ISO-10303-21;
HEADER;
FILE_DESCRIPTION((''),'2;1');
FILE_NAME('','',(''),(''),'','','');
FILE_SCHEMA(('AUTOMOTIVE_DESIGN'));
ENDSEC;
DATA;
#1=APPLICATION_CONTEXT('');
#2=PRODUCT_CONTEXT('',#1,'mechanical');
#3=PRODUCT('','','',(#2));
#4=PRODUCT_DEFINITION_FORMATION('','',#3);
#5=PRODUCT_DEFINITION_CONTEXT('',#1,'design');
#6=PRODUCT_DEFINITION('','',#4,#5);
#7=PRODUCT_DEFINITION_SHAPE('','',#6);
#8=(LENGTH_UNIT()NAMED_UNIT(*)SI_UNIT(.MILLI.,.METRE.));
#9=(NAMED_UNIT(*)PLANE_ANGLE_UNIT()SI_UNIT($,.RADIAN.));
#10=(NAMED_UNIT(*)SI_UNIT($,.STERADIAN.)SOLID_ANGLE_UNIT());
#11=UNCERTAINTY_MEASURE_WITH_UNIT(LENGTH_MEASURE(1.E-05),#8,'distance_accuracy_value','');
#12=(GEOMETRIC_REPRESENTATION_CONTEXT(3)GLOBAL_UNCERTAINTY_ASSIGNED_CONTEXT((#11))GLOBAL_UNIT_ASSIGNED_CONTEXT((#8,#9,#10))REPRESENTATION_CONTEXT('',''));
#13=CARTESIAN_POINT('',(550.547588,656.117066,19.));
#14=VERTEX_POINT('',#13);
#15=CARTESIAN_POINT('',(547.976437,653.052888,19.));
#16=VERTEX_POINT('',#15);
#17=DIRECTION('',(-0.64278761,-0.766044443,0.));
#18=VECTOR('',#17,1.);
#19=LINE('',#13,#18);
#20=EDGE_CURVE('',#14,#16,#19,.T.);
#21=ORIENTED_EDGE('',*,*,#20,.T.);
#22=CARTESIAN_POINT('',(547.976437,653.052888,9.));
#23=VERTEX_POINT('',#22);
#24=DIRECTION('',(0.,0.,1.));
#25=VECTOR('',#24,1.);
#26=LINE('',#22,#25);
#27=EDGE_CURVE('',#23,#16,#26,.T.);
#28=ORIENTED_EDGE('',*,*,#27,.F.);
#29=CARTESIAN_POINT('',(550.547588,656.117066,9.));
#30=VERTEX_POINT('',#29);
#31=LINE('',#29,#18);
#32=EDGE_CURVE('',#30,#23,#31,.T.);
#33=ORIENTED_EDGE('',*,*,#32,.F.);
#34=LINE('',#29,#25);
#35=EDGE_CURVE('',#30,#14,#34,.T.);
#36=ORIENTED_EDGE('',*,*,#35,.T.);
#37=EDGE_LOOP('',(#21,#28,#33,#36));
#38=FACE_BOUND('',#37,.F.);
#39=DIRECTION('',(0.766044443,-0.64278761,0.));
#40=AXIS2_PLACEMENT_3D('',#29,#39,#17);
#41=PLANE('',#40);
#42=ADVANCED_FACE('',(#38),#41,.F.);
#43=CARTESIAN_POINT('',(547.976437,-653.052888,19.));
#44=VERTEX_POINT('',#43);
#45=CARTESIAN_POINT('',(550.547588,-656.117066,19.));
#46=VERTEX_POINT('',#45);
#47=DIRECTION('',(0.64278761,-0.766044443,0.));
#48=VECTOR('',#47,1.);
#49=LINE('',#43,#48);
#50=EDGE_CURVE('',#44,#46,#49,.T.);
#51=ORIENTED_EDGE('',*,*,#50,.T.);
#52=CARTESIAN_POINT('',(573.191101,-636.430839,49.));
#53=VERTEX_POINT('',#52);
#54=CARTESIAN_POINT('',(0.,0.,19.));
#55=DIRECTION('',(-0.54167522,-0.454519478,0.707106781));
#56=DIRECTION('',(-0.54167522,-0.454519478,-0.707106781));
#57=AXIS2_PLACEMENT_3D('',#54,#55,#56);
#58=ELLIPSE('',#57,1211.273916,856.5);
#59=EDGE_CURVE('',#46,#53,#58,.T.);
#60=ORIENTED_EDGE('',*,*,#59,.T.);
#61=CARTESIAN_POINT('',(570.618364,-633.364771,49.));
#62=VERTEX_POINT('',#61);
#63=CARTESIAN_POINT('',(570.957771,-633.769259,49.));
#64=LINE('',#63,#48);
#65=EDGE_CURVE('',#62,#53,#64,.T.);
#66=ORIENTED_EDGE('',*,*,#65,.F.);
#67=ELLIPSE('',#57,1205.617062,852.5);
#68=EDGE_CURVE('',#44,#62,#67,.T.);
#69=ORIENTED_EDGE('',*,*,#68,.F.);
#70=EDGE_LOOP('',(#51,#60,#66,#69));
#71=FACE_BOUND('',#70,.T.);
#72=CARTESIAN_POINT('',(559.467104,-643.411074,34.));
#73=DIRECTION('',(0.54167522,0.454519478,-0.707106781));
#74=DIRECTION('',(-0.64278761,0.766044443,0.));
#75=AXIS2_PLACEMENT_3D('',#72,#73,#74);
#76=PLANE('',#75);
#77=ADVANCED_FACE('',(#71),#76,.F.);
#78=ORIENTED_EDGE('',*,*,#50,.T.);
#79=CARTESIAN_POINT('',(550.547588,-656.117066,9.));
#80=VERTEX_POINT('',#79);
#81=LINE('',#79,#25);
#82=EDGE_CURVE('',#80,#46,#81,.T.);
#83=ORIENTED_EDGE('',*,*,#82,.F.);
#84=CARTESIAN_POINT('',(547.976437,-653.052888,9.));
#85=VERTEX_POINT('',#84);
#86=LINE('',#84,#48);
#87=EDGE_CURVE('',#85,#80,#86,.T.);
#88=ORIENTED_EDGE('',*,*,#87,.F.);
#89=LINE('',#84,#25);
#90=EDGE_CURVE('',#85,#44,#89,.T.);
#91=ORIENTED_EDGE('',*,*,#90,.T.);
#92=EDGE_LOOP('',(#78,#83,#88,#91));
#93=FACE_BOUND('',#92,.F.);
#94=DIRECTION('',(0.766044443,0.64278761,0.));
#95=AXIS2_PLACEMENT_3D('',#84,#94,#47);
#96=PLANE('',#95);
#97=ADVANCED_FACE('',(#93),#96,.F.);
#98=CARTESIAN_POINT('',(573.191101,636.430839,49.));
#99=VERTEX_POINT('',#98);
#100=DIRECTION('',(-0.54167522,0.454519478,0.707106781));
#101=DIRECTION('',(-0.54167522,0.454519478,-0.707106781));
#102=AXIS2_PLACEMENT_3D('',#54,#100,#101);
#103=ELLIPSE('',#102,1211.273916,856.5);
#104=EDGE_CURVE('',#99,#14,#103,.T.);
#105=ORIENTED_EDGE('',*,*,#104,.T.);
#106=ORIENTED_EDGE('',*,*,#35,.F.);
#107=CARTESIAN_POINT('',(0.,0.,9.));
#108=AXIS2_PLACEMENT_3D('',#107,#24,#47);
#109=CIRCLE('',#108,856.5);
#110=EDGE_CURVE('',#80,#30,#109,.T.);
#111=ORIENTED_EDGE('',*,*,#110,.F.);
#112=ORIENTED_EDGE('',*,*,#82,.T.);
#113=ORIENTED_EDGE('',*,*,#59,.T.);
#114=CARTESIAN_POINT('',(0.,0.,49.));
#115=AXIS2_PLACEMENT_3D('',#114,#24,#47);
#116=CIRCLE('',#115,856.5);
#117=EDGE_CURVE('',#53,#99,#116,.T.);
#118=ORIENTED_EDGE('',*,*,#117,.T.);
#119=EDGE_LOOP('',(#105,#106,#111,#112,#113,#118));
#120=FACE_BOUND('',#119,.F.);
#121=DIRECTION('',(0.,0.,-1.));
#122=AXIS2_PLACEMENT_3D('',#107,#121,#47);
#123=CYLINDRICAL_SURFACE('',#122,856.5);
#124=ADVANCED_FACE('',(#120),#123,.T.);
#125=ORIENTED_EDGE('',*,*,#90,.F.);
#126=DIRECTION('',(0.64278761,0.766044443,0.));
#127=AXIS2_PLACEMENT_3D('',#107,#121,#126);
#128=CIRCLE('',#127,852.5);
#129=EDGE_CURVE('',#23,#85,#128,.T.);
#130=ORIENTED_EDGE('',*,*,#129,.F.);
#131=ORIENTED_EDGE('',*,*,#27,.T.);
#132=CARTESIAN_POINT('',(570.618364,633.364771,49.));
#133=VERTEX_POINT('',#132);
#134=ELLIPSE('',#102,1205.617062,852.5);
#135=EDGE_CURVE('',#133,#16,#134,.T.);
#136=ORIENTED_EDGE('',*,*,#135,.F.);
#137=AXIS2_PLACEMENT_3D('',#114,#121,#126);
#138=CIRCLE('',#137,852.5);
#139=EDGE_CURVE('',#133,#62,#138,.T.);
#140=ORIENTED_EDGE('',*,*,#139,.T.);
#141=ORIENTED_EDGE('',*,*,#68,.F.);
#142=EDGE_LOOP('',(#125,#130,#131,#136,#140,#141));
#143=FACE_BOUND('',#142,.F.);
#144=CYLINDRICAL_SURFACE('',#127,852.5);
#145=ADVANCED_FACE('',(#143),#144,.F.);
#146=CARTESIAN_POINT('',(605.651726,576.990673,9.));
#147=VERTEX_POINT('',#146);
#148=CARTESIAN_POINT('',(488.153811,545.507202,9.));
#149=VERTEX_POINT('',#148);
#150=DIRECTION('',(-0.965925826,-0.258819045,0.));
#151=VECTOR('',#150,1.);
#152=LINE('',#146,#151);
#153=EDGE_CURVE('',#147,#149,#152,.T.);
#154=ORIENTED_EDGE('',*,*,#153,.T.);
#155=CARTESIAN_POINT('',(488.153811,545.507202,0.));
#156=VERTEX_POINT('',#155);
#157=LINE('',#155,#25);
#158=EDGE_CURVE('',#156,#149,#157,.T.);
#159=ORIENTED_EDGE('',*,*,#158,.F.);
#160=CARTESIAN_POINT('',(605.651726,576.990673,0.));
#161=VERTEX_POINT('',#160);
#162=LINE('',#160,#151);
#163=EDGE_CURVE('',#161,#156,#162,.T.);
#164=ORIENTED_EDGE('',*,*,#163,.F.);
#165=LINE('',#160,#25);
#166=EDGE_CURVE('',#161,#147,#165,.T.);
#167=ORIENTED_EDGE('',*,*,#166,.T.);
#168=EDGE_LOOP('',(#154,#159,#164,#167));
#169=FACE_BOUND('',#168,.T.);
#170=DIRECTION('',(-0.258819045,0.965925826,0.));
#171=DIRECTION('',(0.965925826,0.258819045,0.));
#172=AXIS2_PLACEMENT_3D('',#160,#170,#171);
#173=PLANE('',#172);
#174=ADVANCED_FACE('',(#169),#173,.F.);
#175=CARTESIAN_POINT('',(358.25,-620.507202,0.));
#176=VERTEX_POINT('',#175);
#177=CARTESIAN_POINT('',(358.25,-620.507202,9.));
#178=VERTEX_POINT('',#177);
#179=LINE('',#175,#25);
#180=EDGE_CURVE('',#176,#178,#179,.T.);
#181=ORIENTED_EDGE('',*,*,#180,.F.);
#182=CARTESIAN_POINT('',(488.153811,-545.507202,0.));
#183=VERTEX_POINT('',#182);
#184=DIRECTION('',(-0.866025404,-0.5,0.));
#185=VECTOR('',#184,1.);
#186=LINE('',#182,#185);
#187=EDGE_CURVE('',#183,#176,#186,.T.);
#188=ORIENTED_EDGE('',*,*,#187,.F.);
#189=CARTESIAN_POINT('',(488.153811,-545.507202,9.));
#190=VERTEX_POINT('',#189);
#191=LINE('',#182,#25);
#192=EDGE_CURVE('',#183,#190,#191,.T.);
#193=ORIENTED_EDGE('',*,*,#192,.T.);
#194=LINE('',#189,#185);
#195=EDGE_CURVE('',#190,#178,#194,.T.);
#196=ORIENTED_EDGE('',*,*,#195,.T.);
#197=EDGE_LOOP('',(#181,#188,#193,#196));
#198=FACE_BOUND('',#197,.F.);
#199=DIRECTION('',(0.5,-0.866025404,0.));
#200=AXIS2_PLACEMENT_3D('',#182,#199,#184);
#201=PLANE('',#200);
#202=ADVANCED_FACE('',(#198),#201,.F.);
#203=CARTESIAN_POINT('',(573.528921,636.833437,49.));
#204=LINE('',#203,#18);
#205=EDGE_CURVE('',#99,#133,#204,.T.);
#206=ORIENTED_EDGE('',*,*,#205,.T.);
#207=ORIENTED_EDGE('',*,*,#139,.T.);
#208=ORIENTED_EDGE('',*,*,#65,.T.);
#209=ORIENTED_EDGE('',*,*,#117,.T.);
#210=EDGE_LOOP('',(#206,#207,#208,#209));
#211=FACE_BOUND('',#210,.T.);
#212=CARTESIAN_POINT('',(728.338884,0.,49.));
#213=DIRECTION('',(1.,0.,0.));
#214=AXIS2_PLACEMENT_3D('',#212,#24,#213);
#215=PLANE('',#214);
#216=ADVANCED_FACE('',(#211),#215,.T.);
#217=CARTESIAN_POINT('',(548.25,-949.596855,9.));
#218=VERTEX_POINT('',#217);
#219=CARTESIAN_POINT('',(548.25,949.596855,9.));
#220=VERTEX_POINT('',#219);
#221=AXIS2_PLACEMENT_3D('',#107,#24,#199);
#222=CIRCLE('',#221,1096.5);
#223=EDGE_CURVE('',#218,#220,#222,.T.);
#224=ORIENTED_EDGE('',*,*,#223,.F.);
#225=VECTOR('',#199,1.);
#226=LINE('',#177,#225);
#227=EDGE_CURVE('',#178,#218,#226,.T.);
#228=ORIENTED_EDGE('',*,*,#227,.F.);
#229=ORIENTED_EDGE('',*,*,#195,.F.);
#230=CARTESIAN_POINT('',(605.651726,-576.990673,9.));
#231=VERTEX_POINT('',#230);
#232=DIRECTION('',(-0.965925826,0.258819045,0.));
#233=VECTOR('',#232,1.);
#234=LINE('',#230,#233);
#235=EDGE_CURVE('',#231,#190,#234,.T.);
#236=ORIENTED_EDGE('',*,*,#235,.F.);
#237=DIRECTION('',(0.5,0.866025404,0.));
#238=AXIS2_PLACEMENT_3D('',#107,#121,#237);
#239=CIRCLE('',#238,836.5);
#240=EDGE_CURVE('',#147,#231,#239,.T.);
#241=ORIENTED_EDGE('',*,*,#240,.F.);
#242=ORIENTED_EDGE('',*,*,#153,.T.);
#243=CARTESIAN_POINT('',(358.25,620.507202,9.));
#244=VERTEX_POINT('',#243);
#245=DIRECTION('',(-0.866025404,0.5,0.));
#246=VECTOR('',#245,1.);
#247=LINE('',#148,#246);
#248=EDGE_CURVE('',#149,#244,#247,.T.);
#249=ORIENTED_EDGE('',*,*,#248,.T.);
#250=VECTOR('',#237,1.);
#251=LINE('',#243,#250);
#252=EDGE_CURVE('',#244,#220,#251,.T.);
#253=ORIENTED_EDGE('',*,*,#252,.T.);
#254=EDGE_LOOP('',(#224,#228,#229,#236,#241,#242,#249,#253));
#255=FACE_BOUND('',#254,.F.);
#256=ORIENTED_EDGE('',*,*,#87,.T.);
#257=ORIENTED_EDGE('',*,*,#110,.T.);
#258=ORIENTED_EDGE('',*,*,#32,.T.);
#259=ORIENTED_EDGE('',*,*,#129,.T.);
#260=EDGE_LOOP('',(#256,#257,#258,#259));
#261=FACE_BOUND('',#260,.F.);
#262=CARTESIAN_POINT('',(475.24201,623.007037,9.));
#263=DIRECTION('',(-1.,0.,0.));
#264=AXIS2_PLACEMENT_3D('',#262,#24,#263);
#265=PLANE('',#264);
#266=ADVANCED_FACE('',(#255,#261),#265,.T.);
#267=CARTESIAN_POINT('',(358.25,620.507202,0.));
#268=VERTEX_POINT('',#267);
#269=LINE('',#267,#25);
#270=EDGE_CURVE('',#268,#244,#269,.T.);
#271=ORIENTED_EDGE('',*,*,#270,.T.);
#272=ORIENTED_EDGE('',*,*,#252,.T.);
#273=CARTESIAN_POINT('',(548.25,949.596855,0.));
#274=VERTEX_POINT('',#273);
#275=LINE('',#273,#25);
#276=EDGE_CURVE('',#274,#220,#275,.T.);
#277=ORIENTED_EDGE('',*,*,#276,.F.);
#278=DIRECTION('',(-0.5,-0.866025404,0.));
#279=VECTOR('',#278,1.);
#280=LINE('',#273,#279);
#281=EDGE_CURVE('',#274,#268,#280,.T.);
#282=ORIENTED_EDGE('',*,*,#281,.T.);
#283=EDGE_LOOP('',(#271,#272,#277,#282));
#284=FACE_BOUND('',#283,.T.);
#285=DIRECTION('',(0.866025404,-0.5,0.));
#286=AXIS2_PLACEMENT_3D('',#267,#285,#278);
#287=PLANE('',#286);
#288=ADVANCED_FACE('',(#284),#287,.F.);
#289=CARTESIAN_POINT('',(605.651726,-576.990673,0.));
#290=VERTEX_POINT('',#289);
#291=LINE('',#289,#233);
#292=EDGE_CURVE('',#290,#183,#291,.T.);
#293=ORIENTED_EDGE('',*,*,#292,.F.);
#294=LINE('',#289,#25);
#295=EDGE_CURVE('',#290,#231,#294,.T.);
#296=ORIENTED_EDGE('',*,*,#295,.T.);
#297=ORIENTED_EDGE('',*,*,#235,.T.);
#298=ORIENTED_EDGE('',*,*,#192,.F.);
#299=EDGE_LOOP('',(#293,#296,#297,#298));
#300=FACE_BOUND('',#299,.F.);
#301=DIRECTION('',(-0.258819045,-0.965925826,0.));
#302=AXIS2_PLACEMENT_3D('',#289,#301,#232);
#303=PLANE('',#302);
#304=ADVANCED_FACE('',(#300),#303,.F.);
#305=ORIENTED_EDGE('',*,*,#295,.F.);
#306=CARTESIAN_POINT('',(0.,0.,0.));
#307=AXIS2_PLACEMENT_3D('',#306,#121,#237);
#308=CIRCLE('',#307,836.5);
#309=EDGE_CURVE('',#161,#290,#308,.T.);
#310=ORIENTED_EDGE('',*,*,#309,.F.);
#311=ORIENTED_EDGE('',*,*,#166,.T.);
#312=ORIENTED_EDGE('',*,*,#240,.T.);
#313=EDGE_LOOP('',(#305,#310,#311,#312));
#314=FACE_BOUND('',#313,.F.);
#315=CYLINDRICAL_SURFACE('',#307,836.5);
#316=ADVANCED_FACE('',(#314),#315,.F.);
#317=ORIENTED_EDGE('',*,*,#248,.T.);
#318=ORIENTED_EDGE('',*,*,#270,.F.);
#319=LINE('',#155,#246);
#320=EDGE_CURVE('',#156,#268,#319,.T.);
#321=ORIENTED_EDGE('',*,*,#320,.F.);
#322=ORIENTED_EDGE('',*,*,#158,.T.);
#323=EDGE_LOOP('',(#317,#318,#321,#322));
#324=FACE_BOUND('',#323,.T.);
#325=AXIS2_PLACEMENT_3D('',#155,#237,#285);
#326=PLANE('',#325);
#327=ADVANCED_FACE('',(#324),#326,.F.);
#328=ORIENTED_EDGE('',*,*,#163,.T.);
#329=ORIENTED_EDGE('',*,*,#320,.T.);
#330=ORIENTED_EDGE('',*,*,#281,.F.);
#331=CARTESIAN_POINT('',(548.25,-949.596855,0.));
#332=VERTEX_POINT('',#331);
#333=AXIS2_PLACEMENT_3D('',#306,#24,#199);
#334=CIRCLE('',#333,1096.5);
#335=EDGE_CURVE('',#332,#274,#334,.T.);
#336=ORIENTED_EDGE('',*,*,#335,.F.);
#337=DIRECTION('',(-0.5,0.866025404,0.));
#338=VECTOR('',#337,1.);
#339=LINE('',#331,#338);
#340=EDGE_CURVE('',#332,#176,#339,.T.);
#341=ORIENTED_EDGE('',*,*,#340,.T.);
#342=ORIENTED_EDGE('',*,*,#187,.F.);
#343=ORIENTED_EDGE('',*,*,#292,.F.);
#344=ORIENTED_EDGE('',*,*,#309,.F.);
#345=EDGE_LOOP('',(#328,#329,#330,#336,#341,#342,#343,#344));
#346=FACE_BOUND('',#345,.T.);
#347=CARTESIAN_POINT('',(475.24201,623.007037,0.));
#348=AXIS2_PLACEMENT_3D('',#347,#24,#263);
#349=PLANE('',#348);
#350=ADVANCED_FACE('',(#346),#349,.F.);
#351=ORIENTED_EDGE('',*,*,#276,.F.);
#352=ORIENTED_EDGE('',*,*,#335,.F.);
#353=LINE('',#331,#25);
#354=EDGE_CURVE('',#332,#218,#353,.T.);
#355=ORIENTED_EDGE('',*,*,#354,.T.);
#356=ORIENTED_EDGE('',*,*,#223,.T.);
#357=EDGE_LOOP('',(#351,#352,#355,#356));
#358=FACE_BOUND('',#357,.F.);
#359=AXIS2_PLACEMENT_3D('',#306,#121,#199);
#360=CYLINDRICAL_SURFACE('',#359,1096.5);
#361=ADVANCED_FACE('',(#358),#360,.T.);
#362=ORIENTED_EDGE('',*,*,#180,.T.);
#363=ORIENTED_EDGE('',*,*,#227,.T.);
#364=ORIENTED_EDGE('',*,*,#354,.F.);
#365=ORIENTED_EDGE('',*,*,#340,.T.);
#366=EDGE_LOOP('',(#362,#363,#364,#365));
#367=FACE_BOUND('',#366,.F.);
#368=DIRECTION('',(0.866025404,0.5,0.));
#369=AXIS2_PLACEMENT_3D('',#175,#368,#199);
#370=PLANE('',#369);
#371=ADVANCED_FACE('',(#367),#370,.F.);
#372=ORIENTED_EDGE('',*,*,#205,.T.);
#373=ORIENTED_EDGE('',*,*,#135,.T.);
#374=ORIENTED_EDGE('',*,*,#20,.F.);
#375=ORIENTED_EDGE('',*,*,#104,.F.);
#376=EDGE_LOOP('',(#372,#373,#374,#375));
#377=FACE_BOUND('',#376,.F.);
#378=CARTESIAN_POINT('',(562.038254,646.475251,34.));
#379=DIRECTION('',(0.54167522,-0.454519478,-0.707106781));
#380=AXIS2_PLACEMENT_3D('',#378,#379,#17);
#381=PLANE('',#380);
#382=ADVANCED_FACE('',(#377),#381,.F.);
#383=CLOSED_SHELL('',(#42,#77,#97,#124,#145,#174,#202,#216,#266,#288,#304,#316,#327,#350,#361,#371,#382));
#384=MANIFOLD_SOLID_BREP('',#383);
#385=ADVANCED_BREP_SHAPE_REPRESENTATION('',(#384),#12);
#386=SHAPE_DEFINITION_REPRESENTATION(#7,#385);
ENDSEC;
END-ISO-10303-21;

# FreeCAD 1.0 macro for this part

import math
import FreeCAD as App
import Part
import Sketcher

V = App.Vector
Q = App.Units.Quantity


def edges_at(feature, points):
    """Names of the edges that pass closest to the given points."""
    edges = feature.Shape.Edges
    near = lambda p: min(range(len(edges)), key=lambda i: edges[i].distToShape(Part.Vertex(*p))[0])
    return sorted({f"Edge{near(p) + 1}" for p in points})

doc = App.newDocument("Part")
body = doc.addObject("PartDesign::Body", "Body")

# Sketch on XY plane
sketch1 = body.newObject("Sketcher::SketchObject", "Sketch")
sketch1.AttachmentSupport = (doc.getObject("XY_Plane"), [""])
sketch1.MapMode = "FlatFace"
sketch1.addGeometry([
    Part.LineSegment(V(418, -724, 0), V(548, -950, 0)),
    Part.ArcOfCircle(Part.Circle(V(0, 0, 0), V(0, 0, 1), 1096), math.radians(-60), math.radians(60)),
    Part.LineSegment(V(548, 950, 0), V(418, 724, 0)),
    Part.ArcOfCircle(Part.Circle(V(0, 0, 0), V(0, 0, 1), 836), math.radians(-60), math.radians(60)),
], False)
sketch1.addConstraint([
    Sketcher.Constraint("Coincident", 0, 2, 1, 1),
    Sketcher.Constraint("Coincident", 1, 2, 2, 1),
    Sketcher.Constraint("Coincident", 2, 2, 3, 2),
    Sketcher.Constraint("Coincident", 3, 1, 0, 1),
    Sketcher.Constraint("Coincident", 1, 3, -1, 1),
    Sketcher.Constraint("Coincident", 3, 3, -1, 1),
    Sketcher.Constraint("Radius", 1, 1096.5),
    Sketcher.Constraint("Radius", 3, 836.5),
    Sketcher.Constraint("Angle", 0, Q("-60 deg")),
    Sketcher.Constraint("Angle", 2, Q("-120 deg")),
    Sketcher.Constraint("DistanceX", 2, 2, 0, 2, 130.0),
    Sketcher.Constraint("DistanceX", -1, 1, 0, 2, 548.25),
])
pad1 = body.newObject("PartDesign::Pad", "Pad")
pad1.Profile = sketch1
pad1.Length = 9

# Sketch on XY plane
sketch2 = body.newObject("Sketcher::SketchObject", "Sketch001")
sketch2.AttachmentSupport = (doc.getObject("XY_Plane"), [""])
sketch2.MapMode = "FlatFace"
sketch2.AttachmentOffset = App.Placement(V(0, 0, 9), App.Rotation())
sketch2.addGeometry([
    Part.LineSegment(V(548, -653.1, 0), V(550.5, -656.1, 0)),
    Part.ArcOfCircle(Part.Circle(V(0, 0, 0), V(0, 0, 1), 856.5), math.radians(-50), math.radians(50)),
    Part.LineSegment(V(550.5, 656.1, 0), V(548, 653.1, 0)),
    Part.ArcOfCircle(Part.Circle(V(0, 0, 0), V(0, 0, 1), 852.5), math.radians(-50), math.radians(50)),
], False)
sketch2.addConstraint([
    Sketcher.Constraint("Coincident", 0, 2, 1, 1),
    Sketcher.Constraint("Coincident", 1, 2, 2, 1),
    Sketcher.Constraint("Coincident", 2, 2, 3, 2),
    Sketcher.Constraint("Coincident", 3, 1, 0, 1),
    Sketcher.Constraint("Coincident", 1, 3, -1, 1),
    Sketcher.Constraint("Coincident", 3, 3, -1, 1),
    Sketcher.Constraint("Radius", 1, 856.5),
    Sketcher.Constraint("Radius", 3, 852.5),
    Sketcher.Constraint("Angle", 0, Q("-50 deg")),
    Sketcher.Constraint("Angle", 2, Q("-130 deg")),
    Sketcher.Constraint("DistanceX", 2, 2, 0, 2, 2.57115),
    Sketcher.Constraint("DistanceX", -1, 1, 0, 2, 550.547588),
])
pad2 = body.newObject("PartDesign::Pad", "Pad001")
pad2.Profile = sketch2
pad2.Length = 40

# Sketch on XY plane
sketch3 = body.newObject("Sketcher::SketchObject", "Sketch002")
sketch3.AttachmentSupport = (doc.getObject("XY_Plane"), [""])
sketch3.MapMode = "FlatFace"
sketch3.addGeometry([
    Part.LineSegment(V(358, -621, 0), V(418, -724, 0)),
    Part.ArcOfCircle(Part.Circle(V(0, 0, 0), V(0, 0, 1), 836), math.radians(-60), math.radians(-43.61)),
    Part.LineSegment(V(606, -577, 0), V(488, -546, 0)),
    Part.LineSegment(V(488, -546, 0), V(358, -621, 0)),
], False)
sketch3.addConstraint([
    Sketcher.Constraint("Coincident", 0, 2, 1, 1),
    Sketcher.Constraint("Coincident", 1, 2, 2, 1),
    Sketcher.Constraint("Coincident", 2, 2, 3, 1),
    Sketcher.Constraint("Coincident", 3, 2, 0, 1),
    Sketcher.Constraint("Coincident", 1, 3, -1, 1),
    Sketcher.Constraint("Perpendicular", 0, 3),
    Sketcher.Constraint("Radius", 1, 836.5),
    Sketcher.Constraint("Angle", 0, Q("-60 deg")),
    Sketcher.Constraint("Angle", 2, Q("165 deg")),
    Sketcher.Constraint("Distance", 0, 120.0),
    Sketcher.Constraint("Distance", 3, 150.0),
    Sketcher.Constraint("DistanceX", -1, 1, 0, 2, 418.25),
])
pad3 = body.newObject("PartDesign::Pad", "Pad002")
pad3.Profile = sketch3
pad3.Length = 9
body2 = doc.addObject("PartDesign::Body", "Body001")
doc.recompute()

body2.BaseFeature = body
doc.recompute()

mirroring = doc.addObject("Part::Mirroring", "Mirroring")
mirroring.Source = body
mirroring.Base = V(0, 0, 0)
mirroring.Normal = V(0, -1, 0)
body3 = doc.addObject("PartDesign::Body", "Body002")
body3.BaseFeature = mirroring
boolean = body2.newObject("PartDesign::Boolean", "Boolean")
boolean.Type = "Fuse"
boolean.addObjects([body3])
doc.recompute()

chamfer = body2.newObject("PartDesign::Chamfer", "Chamfer")
chamfer.Base = (boolean, edges_at(boolean, [(549.262, -654.585, 49), (549.262, 654.585, 49)]))
chamfer.ChamferType = "Two distances"
chamfer.Size = 30
chamfer.Size2 = 30
mirroring.Visibility = False

doc.recompute()
